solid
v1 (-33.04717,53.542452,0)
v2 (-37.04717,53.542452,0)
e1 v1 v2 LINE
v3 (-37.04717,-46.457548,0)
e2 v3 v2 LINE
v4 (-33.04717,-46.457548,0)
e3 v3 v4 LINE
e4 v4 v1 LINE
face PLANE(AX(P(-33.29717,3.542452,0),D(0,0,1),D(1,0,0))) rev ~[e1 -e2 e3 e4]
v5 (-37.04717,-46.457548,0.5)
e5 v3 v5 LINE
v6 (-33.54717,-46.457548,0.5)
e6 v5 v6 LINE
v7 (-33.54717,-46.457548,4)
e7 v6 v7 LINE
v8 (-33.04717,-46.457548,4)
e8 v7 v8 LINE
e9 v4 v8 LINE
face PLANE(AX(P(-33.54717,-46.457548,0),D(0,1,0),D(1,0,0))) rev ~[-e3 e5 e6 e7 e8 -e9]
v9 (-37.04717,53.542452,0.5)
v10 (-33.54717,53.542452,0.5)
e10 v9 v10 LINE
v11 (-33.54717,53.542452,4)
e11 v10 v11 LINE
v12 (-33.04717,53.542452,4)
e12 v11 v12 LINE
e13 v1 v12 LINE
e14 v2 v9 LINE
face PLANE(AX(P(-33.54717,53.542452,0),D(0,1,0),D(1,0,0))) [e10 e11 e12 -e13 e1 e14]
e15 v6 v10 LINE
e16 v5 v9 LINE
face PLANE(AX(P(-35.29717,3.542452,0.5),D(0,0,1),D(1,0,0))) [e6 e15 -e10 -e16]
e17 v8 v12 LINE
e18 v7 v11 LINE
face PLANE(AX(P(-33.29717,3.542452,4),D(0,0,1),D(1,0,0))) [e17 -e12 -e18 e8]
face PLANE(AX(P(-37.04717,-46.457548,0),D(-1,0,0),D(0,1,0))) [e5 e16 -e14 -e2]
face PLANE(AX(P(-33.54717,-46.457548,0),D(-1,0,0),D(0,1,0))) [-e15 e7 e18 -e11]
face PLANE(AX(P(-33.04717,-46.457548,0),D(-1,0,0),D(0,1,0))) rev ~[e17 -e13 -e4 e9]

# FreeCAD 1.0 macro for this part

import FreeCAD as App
import Part
import Sketcher


def add_polygon(sketch, points):
    """Adds a closed chain of lines whose ends are joined by coincident constraints."""
    first, n = sketch.GeometryCount, len(points)
    for a, b in zip(points, points[1:] + points[:1]):
        sketch.addGeometry(Part.LineSegment(App.Vector(*a, 0), App.Vector(*b, 0)), False)
    for i in range(n):
        sketch.addConstraint(Sketcher.Constraint("Coincident", first + i, 2, first + (i + 1) % n, 1))

doc = App.newDocument("Part")
body = doc.addObject("PartDesign::Body", "Body")

# Sketch on XY plane
sketch1 = body.newObject("Sketcher::SketchObject", "Sketch")
sketch1.AttachmentSupport = (doc.getObject("XY_Plane"), [""])
sketch1.MapMode = "FlatFace"
add_polygon(sketch1, [(-37, 53.5), (-37, -46.5), (-33.5, -46.5), (-33.5, 53.5)])  # lines 0-3
sketch1.addConstraint([
    Sketcher.Constraint("Vertical", 0),
    Sketcher.Constraint("Horizontal", 1),
    Sketcher.Constraint("Vertical", 2),
    Sketcher.Constraint("Horizontal", 3),
    Sketcher.Constraint("DistanceY", 0, 2, 0, 1, 100.0),
    Sketcher.Constraint("DistanceX", 1, 1, 1, 2, 3.5),
    Sketcher.Constraint("DistanceX", 0, 2, -1, 1, 37.04717),
    Sketcher.Constraint("DistanceY", 0, 2, -1, 1, 46.457548),
])
pad1 = body.newObject("PartDesign::Pad", "Pad")
pad1.Profile = sketch1
pad1.Length = 0.5

# Sketch on XY plane
sketch2 = body.newObject("Sketcher::SketchObject", "Sketch001")
sketch2.AttachmentSupport = (doc.getObject("XY_Plane"), [""])
sketch2.MapMode = "FlatFace"
add_polygon(sketch2, [(-33.5, 53.5), (-33.5, -46.5), (-33, -46.5), (-33, 53.5)])  # lines 0-3
sketch2.addConstraint([
    Sketcher.Constraint("Vertical", 0),
    Sketcher.Constraint("Horizontal", 1),
    Sketcher.Constraint("Vertical", 2),
    Sketcher.Constraint("Horizontal", 3),
    Sketcher.Constraint("DistanceY", 0, 2, 0, 1, 100.0),
    Sketcher.Constraint("DistanceX", 1, 1, 1, 2, 0.5),
    Sketcher.Constraint("DistanceX", 0, 2, -1, 1, 33.54717),
    Sketcher.Constraint("DistanceY", 0, 2, -1, 1, 46.457548),
])
pad2 = body.newObject("PartDesign::Pad", "Pad001")
pad2.Profile = sketch2
pad2.Length = 4

doc.recompute()
